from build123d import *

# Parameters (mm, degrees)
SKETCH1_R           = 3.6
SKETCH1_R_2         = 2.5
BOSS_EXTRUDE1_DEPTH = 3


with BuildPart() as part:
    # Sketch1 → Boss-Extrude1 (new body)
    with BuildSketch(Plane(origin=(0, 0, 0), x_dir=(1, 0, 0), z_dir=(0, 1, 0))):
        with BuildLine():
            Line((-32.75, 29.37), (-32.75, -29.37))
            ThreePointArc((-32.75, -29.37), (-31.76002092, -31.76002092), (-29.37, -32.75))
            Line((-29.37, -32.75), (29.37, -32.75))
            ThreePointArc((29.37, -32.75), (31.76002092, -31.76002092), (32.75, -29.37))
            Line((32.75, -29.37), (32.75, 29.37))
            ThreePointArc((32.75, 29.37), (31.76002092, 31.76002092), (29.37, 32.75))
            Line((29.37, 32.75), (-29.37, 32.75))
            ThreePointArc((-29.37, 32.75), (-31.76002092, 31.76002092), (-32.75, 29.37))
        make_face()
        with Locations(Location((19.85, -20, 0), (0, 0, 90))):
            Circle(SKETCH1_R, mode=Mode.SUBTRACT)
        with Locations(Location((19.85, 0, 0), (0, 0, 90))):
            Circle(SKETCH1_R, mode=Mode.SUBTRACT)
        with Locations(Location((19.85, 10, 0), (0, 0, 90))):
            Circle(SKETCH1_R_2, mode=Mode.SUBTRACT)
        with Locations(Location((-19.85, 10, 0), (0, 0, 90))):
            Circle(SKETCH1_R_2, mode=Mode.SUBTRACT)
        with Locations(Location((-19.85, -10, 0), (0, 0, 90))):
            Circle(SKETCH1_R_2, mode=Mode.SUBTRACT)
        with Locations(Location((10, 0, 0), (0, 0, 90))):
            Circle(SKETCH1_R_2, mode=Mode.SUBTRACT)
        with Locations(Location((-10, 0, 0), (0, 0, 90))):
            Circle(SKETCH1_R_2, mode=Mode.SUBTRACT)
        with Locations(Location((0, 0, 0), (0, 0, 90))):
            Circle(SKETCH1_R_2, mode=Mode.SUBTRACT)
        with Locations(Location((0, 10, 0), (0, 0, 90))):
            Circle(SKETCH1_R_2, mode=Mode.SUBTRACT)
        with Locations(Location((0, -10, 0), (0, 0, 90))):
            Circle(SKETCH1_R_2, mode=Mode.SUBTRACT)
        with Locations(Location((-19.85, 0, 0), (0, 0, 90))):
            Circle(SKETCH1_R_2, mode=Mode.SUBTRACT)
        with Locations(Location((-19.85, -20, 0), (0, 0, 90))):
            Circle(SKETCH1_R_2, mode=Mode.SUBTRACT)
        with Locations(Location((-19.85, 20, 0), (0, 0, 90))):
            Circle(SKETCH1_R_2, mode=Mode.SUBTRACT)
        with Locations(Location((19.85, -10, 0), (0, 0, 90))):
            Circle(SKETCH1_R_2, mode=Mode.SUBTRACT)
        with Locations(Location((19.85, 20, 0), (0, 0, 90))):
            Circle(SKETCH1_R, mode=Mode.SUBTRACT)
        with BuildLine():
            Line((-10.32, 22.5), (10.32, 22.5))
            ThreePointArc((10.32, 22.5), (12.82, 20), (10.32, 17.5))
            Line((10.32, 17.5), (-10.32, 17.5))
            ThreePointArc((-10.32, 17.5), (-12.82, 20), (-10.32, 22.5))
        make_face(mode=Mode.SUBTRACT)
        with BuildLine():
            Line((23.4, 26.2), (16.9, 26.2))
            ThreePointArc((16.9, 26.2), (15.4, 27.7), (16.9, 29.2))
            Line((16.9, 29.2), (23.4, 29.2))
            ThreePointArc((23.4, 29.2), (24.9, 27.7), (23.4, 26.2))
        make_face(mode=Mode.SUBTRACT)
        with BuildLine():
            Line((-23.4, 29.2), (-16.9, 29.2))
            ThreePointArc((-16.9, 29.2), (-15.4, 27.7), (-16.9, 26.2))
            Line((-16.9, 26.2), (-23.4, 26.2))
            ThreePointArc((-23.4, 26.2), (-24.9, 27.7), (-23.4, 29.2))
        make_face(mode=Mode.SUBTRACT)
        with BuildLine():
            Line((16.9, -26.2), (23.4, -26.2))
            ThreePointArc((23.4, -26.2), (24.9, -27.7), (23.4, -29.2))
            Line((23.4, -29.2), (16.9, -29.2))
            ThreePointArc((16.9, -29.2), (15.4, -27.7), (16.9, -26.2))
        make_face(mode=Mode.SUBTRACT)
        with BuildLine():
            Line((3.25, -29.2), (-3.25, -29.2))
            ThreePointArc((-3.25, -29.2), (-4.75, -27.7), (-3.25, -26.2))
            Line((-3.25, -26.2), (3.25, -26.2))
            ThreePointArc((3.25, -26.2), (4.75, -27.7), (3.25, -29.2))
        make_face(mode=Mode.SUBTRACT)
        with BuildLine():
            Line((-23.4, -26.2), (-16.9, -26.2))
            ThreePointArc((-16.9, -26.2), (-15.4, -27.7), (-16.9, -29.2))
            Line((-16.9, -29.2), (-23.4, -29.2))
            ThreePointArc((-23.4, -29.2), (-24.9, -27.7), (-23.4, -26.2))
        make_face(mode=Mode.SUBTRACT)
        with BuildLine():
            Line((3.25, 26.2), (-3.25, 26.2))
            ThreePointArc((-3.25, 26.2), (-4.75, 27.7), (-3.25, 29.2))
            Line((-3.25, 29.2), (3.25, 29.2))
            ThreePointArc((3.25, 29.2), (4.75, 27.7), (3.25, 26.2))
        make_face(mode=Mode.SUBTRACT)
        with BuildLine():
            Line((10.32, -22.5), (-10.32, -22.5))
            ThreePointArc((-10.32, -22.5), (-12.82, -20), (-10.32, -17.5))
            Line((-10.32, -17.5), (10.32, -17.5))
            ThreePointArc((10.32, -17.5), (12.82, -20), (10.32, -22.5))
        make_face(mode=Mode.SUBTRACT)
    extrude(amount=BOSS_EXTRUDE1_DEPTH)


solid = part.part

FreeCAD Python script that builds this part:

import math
import FreeCAD as App
import Part
import Sketcher
from FreeCAD import Vector
Q = App.Units.Quantity

doc = App.newDocument("Part")
params = doc.addObject("Spreadsheet::Sheet", "Params")
for row, (alias, value) in enumerate([
    ("sketch1_diameter", "5 mm"),
    ("sketch1_diameter2", "7.2 mm"),
    ("sketch1_radius", "1.5 mm"),
    ("sketch1_radius2", "3.38 mm"),
    ("sketch1_width", "6.5 mm"),
    ("pad1_length", "3 mm"),
], start=1):
    params.set(f"A{row}", alias)
    params.set(f"B{row}", "=" + value)
    params.setAlias(f"B{row}", alias)

body = doc.addObject("PartDesign::Body", "Body")

sketch1 = doc.addObject("Sketcher::SketchObject", "Sketch")
body.addObject(sketch1)
sketch1.AttachmentSupport = (doc.XZ_Plane, [""])
sketch1.MapMode = "FlatFace"
sketch1.addGeometry(Part.LineSegment(Vector(-32.75, -29.37, 0), Vector(-32.75, 29.37, 0)), False)
sketch1.addGeometry(Part.ArcOfCircle(Part.Circle(Vector(-29.37, 29.37, 0), Vector(0, 0, 1), 3.38), math.radians(90), math.radians(180)), False)
sketch1.addGeometry(Part.LineSegment(Vector(-29.37, 32.75, 0), Vector(29.37, 32.75, 0)), False)
sketch1.addGeometry(Part.ArcOfCircle(Part.Circle(Vector(29.37, 29.37, 0), Vector(0, 0, 1), 3.38), math.radians(0), math.radians(90)), False)
sketch1.addGeometry(Part.LineSegment(Vector(32.75, 29.37, 0), Vector(32.75, -29.37, 0)), False)
sketch1.addGeometry(Part.ArcOfCircle(Part.Circle(Vector(29.37, -29.37, 0), Vector(0, 0, 1), 3.38), math.radians(-90), math.radians(0)), False)
sketch1.addGeometry(Part.LineSegment(Vector(29.37, -32.75, 0), Vector(-29.37, -32.75, 0)), False)
sketch1.addGeometry(Part.ArcOfCircle(Part.Circle(Vector(-29.37, -29.37, 0), Vector(0, 0, 1), 3.38), math.radians(-180), math.radians(-90)), False)
sketch1.addGeometry(Part.ArcOfCircle(Part.Circle(Vector(-23.4, 27.7, 0), Vector(0, 0, 1), 1.5), math.radians(90), math.radians(270)), False)
sketch1.addGeometry(Part.LineSegment(Vector(-23.4, 26.2, 0), Vector(-16.9, 26.2, 0)), False)
sketch1.addGeometry(Part.ArcOfCircle(Part.Circle(Vector(-16.9, 27.7, 0), Vector(0, 0, 1), 1.5), math.radians(-90), math.radians(90)), False)
sketch1.addGeometry(Part.LineSegment(Vector(-16.9, 29.2, 0), Vector(-23.4, 29.2, 0)), False)
sketch1.addGeometry(Part.Circle(Vector(-19.85, 20, 0), Vector(0, 0, 1), 2.5), False)
sketch1.addGeometry(Part.ArcOfCircle(Part.Circle(Vector(3.25, 27.7, 0), Vector(0, 0, 1), 1.5), math.radians(-90), math.radians(90)), False)
sketch1.addGeometry(Part.LineSegment(Vector(3.25, 29.2, 0), Vector(-3.25, 29.2, 0)), False)
sketch1.addGeometry(Part.ArcOfCircle(Part.Circle(Vector(-3.25, 27.7, 0), Vector(0, 0, 1), 1.5), math.radians(90), math.radians(270)), False)
sketch1.addGeometry(Part.LineSegment(Vector(-3.25, 26.2, 0), Vector(3.25, 26.2, 0)), False)
sketch1.addGeometry(Part.ArcOfCircle(Part.Circle(Vector(10.32, 20, 0), Vector(0, 0, 1), 2.5), math.radians(-90), math.radians(90)), False)
sketch1.addGeometry(Part.LineSegment(Vector(10.32, 22.5, 0), Vector(-10.32, 22.5, 0)), False)
sketch1.addGeometry(Part.ArcOfCircle(Part.Circle(Vector(-10.32, 20, 0), Vector(0, 0, 1), 2.5), math.radians(90), math.radians(270)), False)
sketch1.addGeometry(Part.LineSegment(Vector(-10.32, 17.5, 0), Vector(10.32, 17.5, 0)), False)
sketch1.addGeometry(Part.Circle(Vector(-19.85, 10, 0), Vector(0, 0, 1), 2.5), False)
sketch1.addGeometry(Part.Circle(Vector(-19.85, 0, 0), Vector(0, 0, 1), 2.5), False)
sketch1.addGeometry(Part.Circle(Vector(0, 10, 0), Vector(0, 0, 1), 2.5), False)
sketch1.addGeometry(Part.Circle(Vector(-10, 0, 0), Vector(0, 0, 1), 2.5), False)
sketch1.addGeometry(Part.Circle(Vector(0, 0, 0), Vector(0, 0, 1), 2.5), False)
sketch1.addGeometry(Part.ArcOfCircle(Part.Circle(Vector(16.9, 27.7, 0), Vector(0, 0, 1), 1.5), math.radians(90), math.radians(270)), False)
sketch1.addGeometry(Part.LineSegment(Vector(16.9, 26.2, 0), Vector(23.4, 26.2, 0)), False)
sketch1.addGeometry(Part.ArcOfCircle(Part.Circle(Vector(23.4, 27.7, 0), Vector(0, 0, 1), 1.5), math.radians(-90), math.radians(90)), False)
sketch1.addGeometry(Part.LineSegment(Vector(23.4, 29.2, 0), Vector(16.9, 29.2, 0)), False)
sketch1.addGeometry(Part.Circle(Vector(19.85, 20, 0), Vector(0, 0, 1), 3.6), False)
sketch1.addGeometry(Part.Circle(Vector(10, 0, 0), Vector(0, 0, 1), 2.5), False)
sketch1.addGeometry(Part.Circle(Vector(19.85, 10, 0), Vector(0, 0, 1), 2.5), False)
sketch1.addGeometry(Part.Circle(Vector(19.85, 0, 0), Vector(0, 0, 1), 3.6), False)
sketch1.addGeometry(Part.Circle(Vector(-19.85, -10, 0), Vector(0, 0, 1), 2.5), False)
sketch1.addGeometry(Part.Circle(Vector(0, -10, 0), Vector(0, 0, 1), 2.5), False)
sketch1.addGeometry(Part.Circle(Vector(-19.85, -20, 0), Vector(0, 0, 1), 2.5), False)
sketch1.addGeometry(Part.ArcOfCircle(Part.Circle(Vector(-23.4, -27.7, 0), Vector(0, 0, 1), 1.5), math.radians(90), math.radians(270)), False)
sketch1.addGeometry(Part.LineSegment(Vector(-23.4, -29.2, 0), Vector(-16.9, -29.2, 0)), False)
sketch1.addGeometry(Part.ArcOfCircle(Part.Circle(Vector(-16.9, -27.7, 0), Vector(0, 0, 1), 1.5), math.radians(-90), math.radians(90)), False)
sketch1.addGeometry(Part.LineSegment(Vector(-16.9, -26.2, 0), Vector(-23.4, -26.2, 0)), False)
sketch1.addGeometry(Part.ArcOfCircle(Part.Circle(Vector(-10.32, -20, 0), Vector(0, 0, 1), 2.5), math.radians(90), math.radians(270)), False)
sketch1.addGeometry(Part.LineSegment(Vector(-10.32, -22.5, 0), Vector(10.32, -22.5, 0)), False)
sketch1.addGeometry(Part.ArcOfCircle(Part.Circle(Vector(10.32, -20, 0), Vector(0, 0, 1), 2.5), math.radians(-90), math.radians(90)), False)
sketch1.addGeometry(Part.LineSegment(Vector(10.32, -17.5, 0), Vector(-10.32, -17.5, 0)), False)
sketch1.addGeometry(Part.ArcOfCircle(Part.Circle(Vector(3.25, -27.7, 0), Vector(0, 0, 1), 1.5), math.radians(-90), math.radians(90)), False)
sketch1.addGeometry(Part.LineSegment(Vector(3.25, -26.2, 0), Vector(-3.25, -26.2, 0)), False)
sketch1.addGeometry(Part.ArcOfCircle(Part.Circle(Vector(-3.25, -27.7, 0), Vector(0, 0, 1), 1.5), math.radians(90), math.radians(270)), False)
sketch1.addGeometry(Part.LineSegment(Vector(-3.25, -29.2, 0), Vector(3.25, -29.2, 0)), False)
sketch1.addGeometry(Part.Circle(Vector(19.85, -10, 0), Vector(0, 0, 1), 2.5), False)
sketch1.addGeometry(Part.Circle(Vector(19.85, -20, 0), Vector(0, 0, 1), 3.6), False)
sketch1.addGeometry(Part.ArcOfCircle(Part.Circle(Vector(23.4, -27.7, 0), Vector(0, 0, 1), 1.5), math.radians(-90), math.radians(90)), False)
sketch1.addGeometry(Part.LineSegment(Vector(23.4, -26.2, 0), Vector(16.9, -26.2, 0)), False)
sketch1.addGeometry(Part.ArcOfCircle(Part.Circle(Vector(16.9, -27.7, 0), Vector(0, 0, 1), 1.5), math.radians(90), math.radians(270)), False)
sketch1.addGeometry(Part.LineSegment(Vector(16.9, -29.2, 0), Vector(23.4, -29.2, 0)), False)
sketch1.addConstraint(Sketcher.Constraint("Tangent", 0, 2, 1, 2))
sketch1.addConstraint(Sketcher.Constraint("Tangent", 1, 1, 2, 1))
sketch1.addConstraint(Sketcher.Constraint("Tangent", 2, 2, 3, 2))
sketch1.addConstraint(Sketcher.Constraint("Tangent", 3, 1, 4, 1))
sketch1.addConstraint(Sketcher.Constraint("Tangent", 4, 2, 5, 2))
sketch1.addConstraint(Sketcher.Constraint("Tangent", 5, 1, 6, 1))
sketch1.addConstraint(Sketcher.Constraint("Tangent", 6, 2, 7, 2))
sketch1.addConstraint(Sketcher.Constraint("Tangent", 7, 1, 0, 1))
sketch1.addConstraint(Sketcher.Constraint("Tangent", 8, 2, 9, 1))
sketch1.addConstraint(Sketcher.Constraint("Tangent", 9, 2, 10, 1))
sketch1.addConstraint(Sketcher.Constraint("Tangent", 10, 2, 11, 1))
sketch1.addConstraint(Sketcher.Constraint("Tangent", 11, 2, 8, 1))
sketch1.addConstraint(Sketcher.Constraint("Tangent", 13, 2, 14, 1))
sketch1.addConstraint(Sketcher.Constraint("Tangent", 14, 2, 15, 1))
sketch1.addConstraint(Sketcher.Constraint("Tangent", 15, 2, 16, 1))
sketch1.addConstraint(Sketcher.Constraint("Tangent", 16, 2, 13, 1))
sketch1.addConstraint(Sketcher.Constraint("Tangent", 17, 2, 18, 1))
sketch1.addConstraint(Sketcher.Constraint("Tangent", 18, 2, 19, 1))
sketch1.addConstraint(Sketcher.Constraint("Tangent", 19, 2, 20, 1))
sketch1.addConstraint(Sketcher.Constraint("Tangent", 20, 2, 17, 1))
sketch1.addConstraint(Sketcher.Constraint("Tangent", 26, 2, 27, 1))
sketch1.addConstraint(Sketcher.Constraint("Tangent", 27, 2, 28, 1))
sketch1.addConstraint(Sketcher.Constraint("Tangent", 28, 2, 29, 1))
sketch1.addConstraint(Sketcher.Constraint("Tangent", 29, 2, 26, 1))
sketch1.addConstraint(Sketcher.Constraint("Tangent", 37, 2, 38, 1))
sketch1.addConstraint(Sketcher.Constraint("Tangent", 38, 2, 39, 1))
sketch1.addConstraint(Sketcher.Constraint("Tangent", 39, 2, 40, 1))
sketch1.addConstraint(Sketcher.Constraint("Tangent", 40, 2, 37, 1))
sketch1.addConstraint(Sketcher.Constraint("Tangent", 41, 2, 42, 1))
sketch1.addConstraint(Sketcher.Constraint("Tangent", 42, 2, 43, 1))
sketch1.addConstraint(Sketcher.Constraint("Tangent", 43, 2, 44, 1))
sketch1.addConstraint(Sketcher.Constraint("Tangent", 44, 2, 41, 1))
sketch1.addConstraint(Sketcher.Constraint("Tangent", 45, 2, 46, 1))
sketch1.addConstraint(Sketcher.Constraint("Tangent", 46, 2, 47, 1))
sketch1.addConstraint(Sketcher.Constraint("Tangent", 47, 2, 48, 1))
sketch1.addConstraint(Sketcher.Constraint("Tangent", 48, 2, 45, 1))
sketch1.addConstraint(Sketcher.Constraint("Tangent", 51, 2, 52, 1))
sketch1.addConstraint(Sketcher.Constraint("Tangent", 52, 2, 53, 1))
sketch1.addConstraint(Sketcher.Constraint("Tangent", 53, 2, 54, 1))
sketch1.addConstraint(Sketcher.Constraint("Tangent", 54, 2, 51, 1))
sketch1.addConstraint(Sketcher.Constraint("Vertical", 0))
sketch1.addConstraint(Sketcher.Constraint("Horizontal", 2))
sketch1.addConstraint(Sketcher.Constraint("Vertical", 4))
sketch1.addConstraint(Sketcher.Constraint("Horizontal", 6))
sketch1.addConstraint(Sketcher.Constraint("Horizontal", 9))
sketch1.addConstraint(Sketcher.Constraint("Horizontal", 11))
sketch1.addConstraint(Sketcher.Constraint("Horizontal", 14))
sketch1.addConstraint(Sketcher.Constraint("Horizontal", 16))
sketch1.addConstraint(Sketcher.Constraint("Horizontal", 18))
sketch1.addConstraint(Sketcher.Constraint("Horizontal", 20))
sketch1.addConstraint(Sketcher.Constraint("Horizontal", 27))
sketch1.addConstraint(Sketcher.Constraint("Horizontal", 29))
sketch1.addConstraint(Sketcher.Constraint("Horizontal", 38))
sketch1.addConstraint(Sketcher.Constraint("Horizontal", 40))
sketch1.addConstraint(Sketcher.Constraint("Horizontal", 42))
sketch1.addConstraint(Sketcher.Constraint("Horizontal", 44))
sketch1.addConstraint(Sketcher.Constraint("Horizontal", 46))
sketch1.addConstraint(Sketcher.Constraint("Horizontal", 48))
sketch1.addConstraint(Sketcher.Constraint("Horizontal", 52))
sketch1.addConstraint(Sketcher.Constraint("Horizontal", 54))
sketch1.addConstraint(Sketcher.Constraint("Coincident", 25, 3, -1, 1))
sketch1.addConstraint(Sketcher.Constraint("Equal", 1, 3))
sketch1.addConstraint(Sketcher.Constraint("Equal", 3, 5))
sketch1.addConstraint(Sketcher.Constraint("Equal", 5, 7))
sketch1.addConstraint(Sketcher.Constraint("Equal", 10, 13))
sketch1.addConstraint(Sketcher.Constraint("Equal", 12, 17))
sketch1.addConstraint(Sketcher.Constraint("Equal", 19, 21))
sketch1.addConstraint(Sketcher.Constraint("Equal", 21, 22))
sketch1.addConstraint(Sketcher.Constraint("Equal", 22, 23))
sketch1.addConstraint(Sketcher.Constraint("Equal", 23, 24))
sketch1.addConstraint(Sketcher.Constraint("Equal", 24, 25))
sketch1.addConstraint(Sketcher.Constraint("Equal", 15, 26))
sketch1.addConstraint(Sketcher.Constraint("Equal", 25, 31))
sketch1.addConstraint(Sketcher.Constraint("Equal", 31, 32))
sketch1.addConstraint(Sketcher.Constraint("Equal", 30, 33))
sketch1.addConstraint(Sketcher.Constraint("Equal", 32, 34))
sketch1.addConstraint(Sketcher.Constraint("Equal", 34, 35))
sketch1.addConstraint(Sketcher.Constraint("Equal", 35, 36))
sketch1.addConstraint(Sketcher.Constraint("Equal", 28, 37))
sketch1.addConstraint(Sketcher.Constraint("Equal", 36, 41))
sketch1.addConstraint(Sketcher.Constraint("Equal", 39, 45))
sketch1.addConstraint(Sketcher.Constraint("Equal", 43, 49))
sketch1.addConstraint(Sketcher.Constraint("Equal", 33, 50))
sketch1.addConstraint(Sketcher.Constraint("Equal", 47, 51))
sketch1.addConstraint(Sketcher.Constraint("Symmetric", 1, 3, 5, 3, -1, 1))
sketch1.addConstraint(Sketcher.Constraint("Symmetric", 24, 3, 31, 3, -1, 1))
sketch1.addConstraint(Sketcher.Constraint("Symmetric", 22, 3, 33, 3, -1, 1))
sketch1.addConstraint(Sketcher.Constraint("Symmetric", 32, 3, 34, 3, -1, 1))
sketch1.addConstraint(Sketcher.Constraint("Symmetric", 23, 3, 35, 3, -1, 1))
sketch1.addConstraint(Sketcher.Constraint("Symmetric", 30, 3, 36, 3, -1, 1))
sketch1.addConstraint(Sketcher.Constraint("Symmetric", 28, 3, 37, 3, -1, 1))
sketch1.addConstraint(Sketcher.Constraint("Symmetric", 17, 3, 41, 3, -1, 1))
sketch1.addConstraint(Sketcher.Constraint("Symmetric", 15, 3, 45, 3, -1, 1))
sketch1.addConstraint(Sketcher.Constraint("Symmetric", 21, 3, 49, 3, -1, 1))
sketch1.addConstraint(Sketcher.Constraint("Symmetric", 12, 3, 50, 3, -1, 1))
sketch1.addConstraint(Sketcher.Constraint("Symmetric", 8, 3, 51, 3, -1, 1))
sketch1.addConstraint(Sketcher.Constraint("Symmetric", 10, 3, 26, 3, -2))
sketch1.addConstraint(Sketcher.Constraint("Symmetric", 12, 3, 30, 3, -2))
sketch1.addConstraint(Sketcher.Constraint("Symmetric", 21, 3, 32, 3, -2))
sketch1.addConstraint(Sketcher.Constraint("PointOnObject", 22, 3, -1))
sketch1.addConstraint(Sketcher.Constraint("PointOnObject", 23, 3, -2))
sketch1.addConstraint(Sketcher.Constraint("PointOnObject", 24, 3, -1))
sketch1.addConstraint(Sketcher.Constraint("Horizontal", 10, 3, 13, 3))
sketch1.addConstraint(Sketcher.Constraint("Horizontal", 12, 3, 17, 3))
sketch1.addConstraint(Sketcher.Constraint("Horizontal", 21, 3, 23, 3))
sketch1.addConstraint(Sketcher.Constraint("Vertical", 12, 3, 21, 3))
sketch1.addConstraint(Sketcher.Constraint("Vertical", 21, 3, 22, 3))
sketch1.addConstraint(Sketcher.Constraint("Vertical", 8, 3, 37, 3))
sketch1.addConstraint(Sketcher.Constraint("Vertical", 10, 3, 39, 3))
sketch1.addConstraint(Sketcher.Constraint("Vertical", 19, 3, 41, 3))
sketch1.addConstraint(Sketcher.Constraint("Vertical", 17, 3, 43, 3))
sketch1.addConstraint(Sketcher.Constraint("Vertical", 13, 3, 45, 3))
sketch1.addConstraint(Sketcher.Constraint("Vertical", 15, 3, 47, 3))
sketch1.addConstraint(Sketcher.Constraint("Vertical", 26, 3, 53, 3))
sketch1.addConstraint(Sketcher.Constraint("Equal", 11, 14))
sketch1.addConstraint(Sketcher.Constraint("Equal", 6, 0))
sketch1.addConstraint(Sketcher.Constraint("Diameter", 12, Q("5 mm")))
sketch1.addConstraint(Sketcher.Constraint("Diameter", 30, Q("7.2 mm")))
sketch1.addConstraint(Sketcher.Constraint("Radius", 8, Q("1.5 mm")))
sketch1.addConstraint(Sketcher.Constraint("Radius", 1, Q("3.38 mm")))
sketch1.addConstraint(Sketcher.Constraint("DistanceX", 9, 1, 9, 2, Q("6.5 mm")))
sketch1.addConstraint(Sketcher.Constraint("DistanceY", -1, 1, 12, 3, Q("20 mm")))
sketch1.addConstraint(Sketcher.Constraint("DistanceY", -1, 1, 21, 3, Q("10 mm")))
sketch1.addConstraint(Sketcher.Constraint("DistanceX", 24, 3, -1, 1, Q("10 mm")))
sketch1.addConstraint(Sketcher.Constraint("DistanceX", 2, 1, 2, 2, Q("58.74 mm")))
sketch1.addConstraint(Sketcher.Constraint("DistanceX", 18, 2, 18, 1, Q("20.64 mm")))
sketch1.addConstraint(Sketcher.Constraint("DistanceX", 8, 3, -1, 1, Q("23.4 mm")))
sketch1.addConstraint(Sketcher.Constraint("DistanceY", -1, 1, 8, 3, Q("27.7 mm")))
sketch1.addConstraint(Sketcher.Constraint("DistanceX", 12, 3, -1, 1, Q("19.85 mm")))
sketch1.setExpression("Constraints[116]", "Params.sketch1_diameter")
sketch1.setExpression("Constraints[117]", "Params.sketch1_diameter2")
sketch1.setExpression("Constraints[118]", "Params.sketch1_radius")
sketch1.setExpression("Constraints[119]", "Params.sketch1_radius2")
sketch1.setExpression("Constraints[120]", "Params.sketch1_width")
pad1 = doc.addObject("PartDesign::Pad", "Pad")
body.addObject(pad1)
pad1.Profile = sketch1
pad1.setExpression("Length", "Params.pad1_length")
pad1.Reversed = True

doc.recompute()
